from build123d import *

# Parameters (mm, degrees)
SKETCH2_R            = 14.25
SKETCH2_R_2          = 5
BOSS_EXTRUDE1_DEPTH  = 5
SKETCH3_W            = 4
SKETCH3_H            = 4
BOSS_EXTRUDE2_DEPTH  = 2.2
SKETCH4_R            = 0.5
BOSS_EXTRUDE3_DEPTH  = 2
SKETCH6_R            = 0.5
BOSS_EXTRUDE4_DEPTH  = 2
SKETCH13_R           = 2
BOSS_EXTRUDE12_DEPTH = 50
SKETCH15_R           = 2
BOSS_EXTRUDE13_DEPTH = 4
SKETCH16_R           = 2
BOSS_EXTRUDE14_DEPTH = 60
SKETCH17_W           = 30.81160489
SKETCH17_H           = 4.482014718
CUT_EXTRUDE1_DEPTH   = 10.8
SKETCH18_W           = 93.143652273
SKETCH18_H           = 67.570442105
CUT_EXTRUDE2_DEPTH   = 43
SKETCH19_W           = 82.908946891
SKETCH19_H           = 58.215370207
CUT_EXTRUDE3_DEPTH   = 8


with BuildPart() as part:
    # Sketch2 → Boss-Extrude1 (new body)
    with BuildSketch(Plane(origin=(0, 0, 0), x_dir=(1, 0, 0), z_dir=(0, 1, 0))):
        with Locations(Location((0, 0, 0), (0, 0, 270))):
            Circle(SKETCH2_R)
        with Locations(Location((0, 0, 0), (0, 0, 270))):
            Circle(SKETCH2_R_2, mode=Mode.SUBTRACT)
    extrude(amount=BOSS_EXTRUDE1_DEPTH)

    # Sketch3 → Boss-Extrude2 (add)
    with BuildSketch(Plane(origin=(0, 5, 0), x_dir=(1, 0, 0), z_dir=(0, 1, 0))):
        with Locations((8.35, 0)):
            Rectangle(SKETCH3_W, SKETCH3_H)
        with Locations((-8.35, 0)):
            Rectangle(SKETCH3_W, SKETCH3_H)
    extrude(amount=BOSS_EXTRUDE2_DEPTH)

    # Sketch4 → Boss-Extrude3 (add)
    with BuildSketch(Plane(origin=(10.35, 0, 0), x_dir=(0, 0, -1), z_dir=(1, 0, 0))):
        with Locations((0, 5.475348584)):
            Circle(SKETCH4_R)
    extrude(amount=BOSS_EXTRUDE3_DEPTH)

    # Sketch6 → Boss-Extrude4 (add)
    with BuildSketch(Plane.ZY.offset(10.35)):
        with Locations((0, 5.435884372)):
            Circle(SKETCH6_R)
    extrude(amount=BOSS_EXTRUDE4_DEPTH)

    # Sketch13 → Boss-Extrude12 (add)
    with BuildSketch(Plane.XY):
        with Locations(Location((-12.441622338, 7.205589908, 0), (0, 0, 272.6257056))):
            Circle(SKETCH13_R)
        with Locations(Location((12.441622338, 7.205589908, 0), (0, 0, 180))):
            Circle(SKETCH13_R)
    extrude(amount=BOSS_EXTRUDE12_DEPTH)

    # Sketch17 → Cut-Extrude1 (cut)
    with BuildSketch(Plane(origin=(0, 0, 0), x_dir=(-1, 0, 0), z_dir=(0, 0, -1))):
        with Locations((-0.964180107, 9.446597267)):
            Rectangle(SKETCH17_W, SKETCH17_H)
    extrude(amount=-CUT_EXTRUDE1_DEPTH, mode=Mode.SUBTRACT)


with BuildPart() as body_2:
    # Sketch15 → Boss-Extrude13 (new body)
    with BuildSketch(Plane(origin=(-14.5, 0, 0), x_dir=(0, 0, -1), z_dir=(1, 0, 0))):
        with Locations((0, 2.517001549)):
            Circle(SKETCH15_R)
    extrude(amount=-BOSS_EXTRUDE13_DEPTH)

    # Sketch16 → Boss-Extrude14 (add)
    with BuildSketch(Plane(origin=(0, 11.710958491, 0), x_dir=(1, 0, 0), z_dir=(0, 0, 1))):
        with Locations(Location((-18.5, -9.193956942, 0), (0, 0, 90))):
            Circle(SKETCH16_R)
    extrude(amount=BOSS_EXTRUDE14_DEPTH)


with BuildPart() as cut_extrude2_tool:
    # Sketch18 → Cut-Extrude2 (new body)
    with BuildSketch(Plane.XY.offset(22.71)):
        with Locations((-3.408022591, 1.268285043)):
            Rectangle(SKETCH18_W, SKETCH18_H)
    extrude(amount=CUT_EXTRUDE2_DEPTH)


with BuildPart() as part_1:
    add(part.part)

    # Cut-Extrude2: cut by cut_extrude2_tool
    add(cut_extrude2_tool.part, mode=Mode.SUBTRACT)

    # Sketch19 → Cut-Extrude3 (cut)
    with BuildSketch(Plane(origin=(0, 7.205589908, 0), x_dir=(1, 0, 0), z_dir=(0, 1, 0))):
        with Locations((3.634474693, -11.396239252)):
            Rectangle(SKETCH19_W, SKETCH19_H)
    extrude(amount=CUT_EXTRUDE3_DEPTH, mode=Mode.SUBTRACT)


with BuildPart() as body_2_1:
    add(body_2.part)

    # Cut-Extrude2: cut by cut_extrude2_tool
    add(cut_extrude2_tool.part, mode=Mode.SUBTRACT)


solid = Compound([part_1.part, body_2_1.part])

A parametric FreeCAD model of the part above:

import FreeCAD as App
import Part
import Sketcher
Q = App.Units.Quantity


def add_polygon(sketch, points):
    """Adds a closed chain of lines whose ends are joined by coincident constraints."""
    first, n = sketch.GeometryCount, len(points)
    for a, b in zip(points, points[1:] + points[:1]):
        sketch.addGeometry(Part.LineSegment(App.Vector(*a, 0), App.Vector(*b, 0)), False)
    for i in range(n):
        sketch.addConstraint(Sketcher.Constraint("Coincident", first + i, 2, first + (i + 1) % n, 1))

doc = App.newDocument("Part")
params = doc.addObject("Spreadsheet::Sheet", "Params")
for row, (alias, value) in enumerate([
    ("sketch1_diameter", "10 mm"),
    ("sketch1_diameter2", "28.5 mm"),
    ("pad1_length", "5 mm"),
    ("sketch2_width", "4 mm"),
    ("pad2_length", "2.2 mm"),
    ("sketch3_diameter", "1 mm"),
    ("pad3_length", "2 mm"),
    ("sketch4_diameter", "1 mm"),
    ("pad4_length", "2 mm"),
    ("sketch5_diameter", "4 mm"),
    ("pad5_length", "50 mm"),
    ("pocket1_length", "10.8 mm"),
    ("sketch7_diameter", "4 mm"),
    ("pad6_length", "4 mm"),
    ("sketch8_diameter", "4 mm"),
    ("pad7_length", "60 mm"),
    ("pad8_length", "43 mm"),
    ("pocket2_length", "8 mm"),
], start=1):
    params.set(f"A{row}", alias)
    params.set(f"B{row}", "=" + value)
    params.setAlias(f"B{row}", alias)

body = doc.addObject("PartDesign::Body", "Body")

sketch1 = doc.addObject("Sketcher::SketchObject", "Sketch")
body.addObject(sketch1)
sketch1.AttachmentSupport = (doc.XZ_Plane, [""])
sketch1.MapMode = "FlatFace"
sketch1.addGeometry(Part.Circle(App.Vector(0, 0, 0), App.Vector(0, 0, 1), 14), False)
sketch1.addGeometry(Part.Circle(App.Vector(0, 0, 0), App.Vector(0, 0, 1), 5), False)
sketch1.addConstraint(Sketcher.Constraint("Coincident", 0, 3, -1, 1))
sketch1.addConstraint(Sketcher.Constraint("Coincident", 1, 3, -1, 1))
sketch1.addConstraint(Sketcher.Constraint("Diameter", 1, Q("10 mm")))
sketch1.addConstraint(Sketcher.Constraint("Diameter", 0, Q("28.5 mm")))
sketch1.setExpression("Constraints[2]", "Params.sketch1_diameter")
sketch1.setExpression("Constraints[3]", "Params.sketch1_diameter2")
pad1 = doc.addObject("PartDesign::Pad", "Pad")
body.addObject(pad1)
pad1.Profile = sketch1
pad1.setExpression("Length", "Params.pad1_length")
pad1.Reversed = True

sketch2 = doc.addObject("Sketcher::SketchObject", "Sketch001")
body.addObject(sketch2)
sketch2.AttachmentSupport = (doc.XZ_Plane, [""])
sketch2.MapMode = "FlatFace"
sketch2.AttachmentOffset = App.Placement(App.Vector(0, 0, -5), App.Rotation())
add_polygon(sketch2, [(6.3, -2), (6.3, 2), (10.3, 2), (10.3, -2)])
add_polygon(sketch2, [(-10.3, -2), (-10.3, 2), (-6.3, 2), (-6.3, -2)])
sketch2.addConstraint(Sketcher.Constraint("Vertical", 0))
sketch2.addConstraint(Sketcher.Constraint("Horizontal", 1))
sketch2.addConstraint(Sketcher.Constraint("Vertical", 2))
sketch2.addConstraint(Sketcher.Constraint("Horizontal", 3))
sketch2.addConstraint(Sketcher.Constraint("Vertical", 4))
sketch2.addConstraint(Sketcher.Constraint("Horizontal", 5))
sketch2.addConstraint(Sketcher.Constraint("Vertical", 6))
sketch2.addConstraint(Sketcher.Constraint("Horizontal", 7))
sketch2.addConstraint(Sketcher.Constraint("Symmetric", 2, 2, 4, 2, -1, 1))
sketch2.addConstraint(Sketcher.Constraint("Symmetric", 0, 2, 6, 2, -1, 1))
sketch2.addConstraint(Sketcher.Constraint("Horizontal", 1, 2, 4, 2))
sketch2.addConstraint(Sketcher.Constraint("Equal", 7, 0))
sketch2.addConstraint(Sketcher.Constraint("DistanceX", 1, 1, 1, 2, Q("4 mm")))
sketch2.addConstraint(Sketcher.Constraint("DistanceX", 4, 2, 0, 2, Q("16.7 mm")))
sketch2.setExpression("Constraints[20]", "Params.sketch2_width")
pad2 = doc.addObject("PartDesign::Pad", "Pad001")
body.addObject(pad2)
pad2.Profile = sketch2
pad2.setExpression("Length", "Params.pad2_length")
pad2.Reversed = True

sketch3 = doc.addObject("Sketcher::SketchObject", "Sketch002")
body.addObject(sketch3)
sketch3.AttachmentSupport = (doc.YZ_Plane, [""])
sketch3.MapMode = "FlatFace"
sketch3.AttachmentOffset = App.Placement(App.Vector(0, 0, 10.35), App.Rotation())
sketch3.addGeometry(Part.Circle(App.Vector(5.5, 0, 0), App.Vector(0, 0, 1), 0.5), False)
sketch3.addConstraint(Sketcher.Constraint("PointOnObject", 0, 3, -1))
sketch3.addConstraint(Sketcher.Constraint("Diameter", 0, Q("1 mm")))
sketch3.addConstraint(Sketcher.Constraint("DistanceX", -1, 1, 0, 3, Q("5.475349 mm")))
sketch3.setExpression("Constraints[1]", "Params.sketch3_diameter")
pad3 = doc.addObject("PartDesign::Pad", "Pad002")
body.addObject(pad3)
pad3.Profile = sketch3
pad3.setExpression("Length", "Params.pad3_length")

sketch4 = doc.addObject("Sketcher::SketchObject", "Sketch003")
body.addObject(sketch4)
sketch4.AttachmentSupport = (doc.YZ_Plane, [""])
sketch4.MapMode = "FlatFace"
sketch4.AttachmentOffset = App.Placement(App.Vector(0, 0, -10.35), App.Rotation())
sketch4.addGeometry(Part.Circle(App.Vector(5.4, 0, 0), App.Vector(0, 0, 1), 0.5), False)
sketch4.addConstraint(Sketcher.Constraint("PointOnObject", 0, 3, -1))
sketch4.addConstraint(Sketcher.Constraint("Diameter", 0, Q("1 mm")))
sketch4.addConstraint(Sketcher.Constraint("DistanceX", -1, 1, 0, 3, Q("5.435884 mm")))
sketch4.setExpression("Constraints[1]", "Params.sketch4_diameter")
pad4 = doc.addObject("PartDesign::Pad", "Pad003")
body.addObject(pad4)
pad4.Profile = sketch4
pad4.setExpression("Length", "Params.pad4_length")
pad4.Reversed = True

sketch5 = doc.addObject("Sketcher::SketchObject", "Sketch004")
body.addObject(sketch5)
sketch5.AttachmentSupport = (doc.XY_Plane, [""])
sketch5.MapMode = "FlatFace"
sketch5.addGeometry(Part.Circle(App.Vector(-12.4, 7.2, 0), App.Vector(0, 0, 1), 2), False)
sketch5.addGeometry(Part.Circle(App.Vector(12.4, 7.2, 0), App.Vector(0, 0, 1), 2), False)
sketch5.addConstraint(Sketcher.Constraint("Equal", 0, 1))
sketch5.addConstraint(Sketcher.Constraint("Symmetric", 0, 3, 1, 3, -2))
sketch5.addConstraint(Sketcher.Constraint("Diameter", 0, Q("4 mm")))
sketch5.addConstraint(Sketcher.Constraint("DistanceY", -1, 1, 0, 3, Q("7.20559 mm")))
sketch5.addConstraint(Sketcher.Constraint("DistanceX", 0, 3, -1, 1, Q("12.441622 mm")))
sketch5.setExpression("Constraints[2]", "Params.sketch5_diameter")
pad5 = doc.addObject("PartDesign::Pad", "Pad004")
body.addObject(pad5)
pad5.Profile = sketch5
pad5.setExpression("Length", "Params.pad5_length")

sketch6 = doc.addObject("Sketcher::SketchObject", "Sketch005")
body.addObject(sketch6)
sketch6.AttachmentSupport = (doc.XY_Plane, [""])
sketch6.MapMode = "FlatFace"
add_polygon(sketch6, [(16.4, 11.7), (16.4, 7.2), (-14.4, 7.2), (-14.4, 11.7)])
sketch6.addConstraint(Sketcher.Constraint("Vertical", 0))
sketch6.addConstraint(Sketcher.Constraint("Horizontal", 1))
sketch6.addConstraint(Sketcher.Constraint("Vertical", 2))
sketch6.addConstraint(Sketcher.Constraint("Horizontal", 3))
sketch6.addConstraint(Sketcher.Constraint("DistanceX", 1, 2, 1, 1, Q("30.811605 mm")))
sketch6.addConstraint(Sketcher.Constraint("DistanceY", 0, 2, 0, 1, Q("4.482015 mm")))
sketch6.addConstraint(Sketcher.Constraint("DistanceY", -1, 1, 0, 2, Q("7.20559 mm")))
sketch6.addConstraint(Sketcher.Constraint("DistanceX", -1, 1, 0, 2, Q("16.369983 mm")))
pocket1 = doc.addObject("PartDesign::Pocket", "Pocket")
body.addObject(pocket1)
pocket1.Profile = sketch6
pocket1.setExpression("Length", "Params.pocket1_length")
pocket1.Reversed = True
body2 = doc.addObject("PartDesign::Body", "Body001")

sketch7 = doc.addObject("Sketcher::SketchObject", "Sketch006")
body2.addObject(sketch7)
sketch7.AttachmentSupport = (doc.getObject("YZ_Plane001"), [""])
sketch7.MapMode = "FlatFace"
sketch7.AttachmentOffset = App.Placement(App.Vector(0, 0, -14.5), App.Rotation())
sketch7.addGeometry(Part.Circle(App.Vector(2.5, 0, 0), App.Vector(0, 0, 1), 2), False)
sketch7.addConstraint(Sketcher.Constraint("PointOnObject", 0, 3, -1))
sketch7.addConstraint(Sketcher.Constraint("Diameter", 0, Q("4 mm")))
sketch7.addConstraint(Sketcher.Constraint("DistanceX", -1, 1, 0, 3, Q("2.517002 mm")))
sketch7.setExpression("Constraints[1]", "Params.sketch7_diameter")
pad6 = doc.addObject("PartDesign::Pad", "Pad005")
body2.addObject(pad6)
pad6.Profile = sketch7
pad6.setExpression("Length", "Params.pad6_length")
pad6.Reversed = True

sketch8 = doc.addObject("Sketcher::SketchObject", "Sketch007")
body2.addObject(sketch8)
sketch8.AttachmentSupport = (doc.getObject("XY_Plane001"), [""])
sketch8.MapMode = "FlatFace"
sketch8.addGeometry(Part.Circle(App.Vector(-18.5, 2.5, 0), App.Vector(0, 0, 1), 2), False)
sketch8.addConstraint(Sketcher.Constraint("Diameter", 0, Q("4 mm")))
sketch8.addConstraint(Sketcher.Constraint("DistanceX", 0, 3, -1, 1, Q("18.5 mm")))
sketch8.addConstraint(Sketcher.Constraint("DistanceY", -1, 1, 0, 3, Q("2.517002 mm")))
sketch8.setExpression("Constraints[0]", "Params.sketch8_diameter")
pad7 = doc.addObject("PartDesign::Pad", "Pad006")
body2.addObject(pad7)
pad7.Profile = sketch8
pad7.setExpression("Length", "Params.pad7_length")
body3 = doc.addObject("PartDesign::Body", "Body002")

sketch9 = doc.addObject("Sketcher::SketchObject", "Sketch008")
body3.addObject(sketch9)
sketch9.AttachmentSupport = (doc.getObject("XY_Plane002"), [""])
sketch9.MapMode = "FlatFace"
sketch9.AttachmentOffset = App.Placement(App.Vector(0, 0, 22.71), App.Rotation())
add_polygon(sketch9, [(-50, 35), (-50, -33), (43, -33), (43, 35)])
sketch9.addConstraint(Sketcher.Constraint("Vertical", 0))
sketch9.addConstraint(Sketcher.Constraint("Horizontal", 1))
sketch9.addConstraint(Sketcher.Constraint("Vertical", 2))
sketch9.addConstraint(Sketcher.Constraint("Horizontal", 3))
sketch9.addConstraint(Sketcher.Constraint("DistanceX", 1, 1, 1, 2, Q("93.143652 mm")))
sketch9.addConstraint(Sketcher.Constraint("DistanceY", 0, 2, 0, 1, Q("67.570442 mm")))
sketch9.addConstraint(Sketcher.Constraint("DistanceX", 0, 2, -1, 1, Q("49.979849 mm")))
sketch9.addConstraint(Sketcher.Constraint("DistanceY", 0, 2, -1, 1, Q("32.516936 mm")))
pad8 = doc.addObject("PartDesign::Pad", "Pad007")
body3.addObject(pad8)
pad8.Profile = sketch9
pad8.setExpression("Length", "Params.pad8_length")
doc.recompute()

body4 = doc.addObject("PartDesign::Body", "Body003")
body4.BaseFeature = body3
boolean = doc.addObject("PartDesign::Boolean", "Boolean")
body.addObject(boolean)
boolean.Type = "Cut"
boolean.addObjects([body4])
doc.recompute()

sketch10 = doc.addObject("Sketcher::SketchObject", "Sketch009")
body.addObject(sketch10)
sketch10.AttachmentSupport = (doc.XZ_Plane, [""])
sketch10.MapMode = "FlatFace"
sketch10.AttachmentOffset = App.Placement(App.Vector(0, 0, -7.20559), App.Rotation())
add_polygon(sketch10, [(-38, -18), (-38, 41), (45, 41), (45, -18)])
sketch10.addConstraint(Sketcher.Constraint("Vertical", 0))
sketch10.addConstraint(Sketcher.Constraint("Horizontal", 1))
sketch10.addConstraint(Sketcher.Constraint("Vertical", 2))
sketch10.addConstraint(Sketcher.Constraint("Horizontal", 3))
sketch10.addConstraint(Sketcher.Constraint("DistanceX", 0, 2, -1, 1, Q("37.819999 mm")))
sketch10.addConstraint(Sketcher.Constraint("DistanceY", 0, 1, 0, 2, Q("58.21537 mm")))
sketch10.addConstraint(Sketcher.Constraint("DistanceX", 1, 1, 1, 2, Q("82.908947 mm")))
sketch10.addConstraint(Sketcher.Constraint("DistanceY", -1, 1, 0, 2, Q("40.503924 mm")))
pocket2 = doc.addObject("PartDesign::Pocket", "Pocket001")
body.addObject(pocket2)
pocket2.Profile = sketch10
pocket2.setExpression("Length", "Params.pocket2_length")
doc.recompute()

boolean2 = doc.addObject("PartDesign::Boolean", "Boolean001")
body2.addObject(boolean2)
boolean2.Type = "Cut"
boolean2.addObjects([body3])

doc.recompute()
